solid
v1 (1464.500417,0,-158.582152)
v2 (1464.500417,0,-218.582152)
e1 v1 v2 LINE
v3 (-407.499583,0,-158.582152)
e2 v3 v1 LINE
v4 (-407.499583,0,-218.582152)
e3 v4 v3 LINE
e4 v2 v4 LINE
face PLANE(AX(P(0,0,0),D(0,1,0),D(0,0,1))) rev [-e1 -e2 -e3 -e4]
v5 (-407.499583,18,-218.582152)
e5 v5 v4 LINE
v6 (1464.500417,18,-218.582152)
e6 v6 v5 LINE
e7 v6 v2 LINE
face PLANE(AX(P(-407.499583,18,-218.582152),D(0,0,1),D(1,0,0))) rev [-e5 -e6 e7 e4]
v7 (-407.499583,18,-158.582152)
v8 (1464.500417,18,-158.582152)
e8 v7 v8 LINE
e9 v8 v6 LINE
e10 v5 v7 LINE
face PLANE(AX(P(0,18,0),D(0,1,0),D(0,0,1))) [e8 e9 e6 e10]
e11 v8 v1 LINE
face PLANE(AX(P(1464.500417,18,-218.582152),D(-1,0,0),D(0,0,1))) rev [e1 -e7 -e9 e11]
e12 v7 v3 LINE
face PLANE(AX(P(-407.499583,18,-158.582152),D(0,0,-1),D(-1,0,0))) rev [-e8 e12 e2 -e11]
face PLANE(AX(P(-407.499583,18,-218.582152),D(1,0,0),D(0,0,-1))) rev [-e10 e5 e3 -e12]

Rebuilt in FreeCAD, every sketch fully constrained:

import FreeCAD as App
import Part
import Sketcher
Q = App.Units.Quantity

doc = App.newDocument("Part")
body = doc.addObject("PartDesign::Body", "Body")

# Sketch on XZ plane
sketch1 = body.newObject("Sketcher::SketchObject", "Sketch")
sketch1.AttachmentSupport = (doc.getObject("XZ_Plane"), [""])
sketch1.MapMode = "FlatFace"
sketch1.addGeometry([
    Part.LineSegment(App.Vector(-407, -219, 0), App.Vector(-407, -159, 0)),
    Part.LineSegment(App.Vector(-407, -159, 0), App.Vector(1465, -159, 0)),
    Part.LineSegment(App.Vector(1465, -159, 0), App.Vector(1465, -219, 0)),
    Part.LineSegment(App.Vector(1465, -219, 0), App.Vector(-407, -219, 0)),
], False)
sketch1.addConstraint([
    Sketcher.Constraint("Coincident", 0, 2, 1, 1),
    Sketcher.Constraint("Coincident", 1, 2, 2, 1),
    Sketcher.Constraint("Coincident", 2, 2, 3, 1),
    Sketcher.Constraint("Coincident", 3, 2, 0, 1),
    Sketcher.Constraint("Vertical", 0),
    Sketcher.Constraint("Horizontal", 1),
    Sketcher.Constraint("Vertical", 2),
    Sketcher.Constraint("Horizontal", 3),
    Sketcher.Constraint("DistanceX", 1, 1, 1, 2, Q("1872 mm")),
    Sketcher.Constraint("DistanceY", 0, 1, 0, 2, Q("60 mm")),
    Sketcher.Constraint("DistanceY", 0, 2, -1, 1, Q("158.582152 mm")),
    Sketcher.Constraint("DistanceX", 0, 2, -1, 1, Q("407.499583 mm")),
])
pad1 = body.newObject("PartDesign::Pad", "Pad")
pad1.Profile = sketch1
pad1.Length = 18
pad1.Reversed = True

doc.recompute()
